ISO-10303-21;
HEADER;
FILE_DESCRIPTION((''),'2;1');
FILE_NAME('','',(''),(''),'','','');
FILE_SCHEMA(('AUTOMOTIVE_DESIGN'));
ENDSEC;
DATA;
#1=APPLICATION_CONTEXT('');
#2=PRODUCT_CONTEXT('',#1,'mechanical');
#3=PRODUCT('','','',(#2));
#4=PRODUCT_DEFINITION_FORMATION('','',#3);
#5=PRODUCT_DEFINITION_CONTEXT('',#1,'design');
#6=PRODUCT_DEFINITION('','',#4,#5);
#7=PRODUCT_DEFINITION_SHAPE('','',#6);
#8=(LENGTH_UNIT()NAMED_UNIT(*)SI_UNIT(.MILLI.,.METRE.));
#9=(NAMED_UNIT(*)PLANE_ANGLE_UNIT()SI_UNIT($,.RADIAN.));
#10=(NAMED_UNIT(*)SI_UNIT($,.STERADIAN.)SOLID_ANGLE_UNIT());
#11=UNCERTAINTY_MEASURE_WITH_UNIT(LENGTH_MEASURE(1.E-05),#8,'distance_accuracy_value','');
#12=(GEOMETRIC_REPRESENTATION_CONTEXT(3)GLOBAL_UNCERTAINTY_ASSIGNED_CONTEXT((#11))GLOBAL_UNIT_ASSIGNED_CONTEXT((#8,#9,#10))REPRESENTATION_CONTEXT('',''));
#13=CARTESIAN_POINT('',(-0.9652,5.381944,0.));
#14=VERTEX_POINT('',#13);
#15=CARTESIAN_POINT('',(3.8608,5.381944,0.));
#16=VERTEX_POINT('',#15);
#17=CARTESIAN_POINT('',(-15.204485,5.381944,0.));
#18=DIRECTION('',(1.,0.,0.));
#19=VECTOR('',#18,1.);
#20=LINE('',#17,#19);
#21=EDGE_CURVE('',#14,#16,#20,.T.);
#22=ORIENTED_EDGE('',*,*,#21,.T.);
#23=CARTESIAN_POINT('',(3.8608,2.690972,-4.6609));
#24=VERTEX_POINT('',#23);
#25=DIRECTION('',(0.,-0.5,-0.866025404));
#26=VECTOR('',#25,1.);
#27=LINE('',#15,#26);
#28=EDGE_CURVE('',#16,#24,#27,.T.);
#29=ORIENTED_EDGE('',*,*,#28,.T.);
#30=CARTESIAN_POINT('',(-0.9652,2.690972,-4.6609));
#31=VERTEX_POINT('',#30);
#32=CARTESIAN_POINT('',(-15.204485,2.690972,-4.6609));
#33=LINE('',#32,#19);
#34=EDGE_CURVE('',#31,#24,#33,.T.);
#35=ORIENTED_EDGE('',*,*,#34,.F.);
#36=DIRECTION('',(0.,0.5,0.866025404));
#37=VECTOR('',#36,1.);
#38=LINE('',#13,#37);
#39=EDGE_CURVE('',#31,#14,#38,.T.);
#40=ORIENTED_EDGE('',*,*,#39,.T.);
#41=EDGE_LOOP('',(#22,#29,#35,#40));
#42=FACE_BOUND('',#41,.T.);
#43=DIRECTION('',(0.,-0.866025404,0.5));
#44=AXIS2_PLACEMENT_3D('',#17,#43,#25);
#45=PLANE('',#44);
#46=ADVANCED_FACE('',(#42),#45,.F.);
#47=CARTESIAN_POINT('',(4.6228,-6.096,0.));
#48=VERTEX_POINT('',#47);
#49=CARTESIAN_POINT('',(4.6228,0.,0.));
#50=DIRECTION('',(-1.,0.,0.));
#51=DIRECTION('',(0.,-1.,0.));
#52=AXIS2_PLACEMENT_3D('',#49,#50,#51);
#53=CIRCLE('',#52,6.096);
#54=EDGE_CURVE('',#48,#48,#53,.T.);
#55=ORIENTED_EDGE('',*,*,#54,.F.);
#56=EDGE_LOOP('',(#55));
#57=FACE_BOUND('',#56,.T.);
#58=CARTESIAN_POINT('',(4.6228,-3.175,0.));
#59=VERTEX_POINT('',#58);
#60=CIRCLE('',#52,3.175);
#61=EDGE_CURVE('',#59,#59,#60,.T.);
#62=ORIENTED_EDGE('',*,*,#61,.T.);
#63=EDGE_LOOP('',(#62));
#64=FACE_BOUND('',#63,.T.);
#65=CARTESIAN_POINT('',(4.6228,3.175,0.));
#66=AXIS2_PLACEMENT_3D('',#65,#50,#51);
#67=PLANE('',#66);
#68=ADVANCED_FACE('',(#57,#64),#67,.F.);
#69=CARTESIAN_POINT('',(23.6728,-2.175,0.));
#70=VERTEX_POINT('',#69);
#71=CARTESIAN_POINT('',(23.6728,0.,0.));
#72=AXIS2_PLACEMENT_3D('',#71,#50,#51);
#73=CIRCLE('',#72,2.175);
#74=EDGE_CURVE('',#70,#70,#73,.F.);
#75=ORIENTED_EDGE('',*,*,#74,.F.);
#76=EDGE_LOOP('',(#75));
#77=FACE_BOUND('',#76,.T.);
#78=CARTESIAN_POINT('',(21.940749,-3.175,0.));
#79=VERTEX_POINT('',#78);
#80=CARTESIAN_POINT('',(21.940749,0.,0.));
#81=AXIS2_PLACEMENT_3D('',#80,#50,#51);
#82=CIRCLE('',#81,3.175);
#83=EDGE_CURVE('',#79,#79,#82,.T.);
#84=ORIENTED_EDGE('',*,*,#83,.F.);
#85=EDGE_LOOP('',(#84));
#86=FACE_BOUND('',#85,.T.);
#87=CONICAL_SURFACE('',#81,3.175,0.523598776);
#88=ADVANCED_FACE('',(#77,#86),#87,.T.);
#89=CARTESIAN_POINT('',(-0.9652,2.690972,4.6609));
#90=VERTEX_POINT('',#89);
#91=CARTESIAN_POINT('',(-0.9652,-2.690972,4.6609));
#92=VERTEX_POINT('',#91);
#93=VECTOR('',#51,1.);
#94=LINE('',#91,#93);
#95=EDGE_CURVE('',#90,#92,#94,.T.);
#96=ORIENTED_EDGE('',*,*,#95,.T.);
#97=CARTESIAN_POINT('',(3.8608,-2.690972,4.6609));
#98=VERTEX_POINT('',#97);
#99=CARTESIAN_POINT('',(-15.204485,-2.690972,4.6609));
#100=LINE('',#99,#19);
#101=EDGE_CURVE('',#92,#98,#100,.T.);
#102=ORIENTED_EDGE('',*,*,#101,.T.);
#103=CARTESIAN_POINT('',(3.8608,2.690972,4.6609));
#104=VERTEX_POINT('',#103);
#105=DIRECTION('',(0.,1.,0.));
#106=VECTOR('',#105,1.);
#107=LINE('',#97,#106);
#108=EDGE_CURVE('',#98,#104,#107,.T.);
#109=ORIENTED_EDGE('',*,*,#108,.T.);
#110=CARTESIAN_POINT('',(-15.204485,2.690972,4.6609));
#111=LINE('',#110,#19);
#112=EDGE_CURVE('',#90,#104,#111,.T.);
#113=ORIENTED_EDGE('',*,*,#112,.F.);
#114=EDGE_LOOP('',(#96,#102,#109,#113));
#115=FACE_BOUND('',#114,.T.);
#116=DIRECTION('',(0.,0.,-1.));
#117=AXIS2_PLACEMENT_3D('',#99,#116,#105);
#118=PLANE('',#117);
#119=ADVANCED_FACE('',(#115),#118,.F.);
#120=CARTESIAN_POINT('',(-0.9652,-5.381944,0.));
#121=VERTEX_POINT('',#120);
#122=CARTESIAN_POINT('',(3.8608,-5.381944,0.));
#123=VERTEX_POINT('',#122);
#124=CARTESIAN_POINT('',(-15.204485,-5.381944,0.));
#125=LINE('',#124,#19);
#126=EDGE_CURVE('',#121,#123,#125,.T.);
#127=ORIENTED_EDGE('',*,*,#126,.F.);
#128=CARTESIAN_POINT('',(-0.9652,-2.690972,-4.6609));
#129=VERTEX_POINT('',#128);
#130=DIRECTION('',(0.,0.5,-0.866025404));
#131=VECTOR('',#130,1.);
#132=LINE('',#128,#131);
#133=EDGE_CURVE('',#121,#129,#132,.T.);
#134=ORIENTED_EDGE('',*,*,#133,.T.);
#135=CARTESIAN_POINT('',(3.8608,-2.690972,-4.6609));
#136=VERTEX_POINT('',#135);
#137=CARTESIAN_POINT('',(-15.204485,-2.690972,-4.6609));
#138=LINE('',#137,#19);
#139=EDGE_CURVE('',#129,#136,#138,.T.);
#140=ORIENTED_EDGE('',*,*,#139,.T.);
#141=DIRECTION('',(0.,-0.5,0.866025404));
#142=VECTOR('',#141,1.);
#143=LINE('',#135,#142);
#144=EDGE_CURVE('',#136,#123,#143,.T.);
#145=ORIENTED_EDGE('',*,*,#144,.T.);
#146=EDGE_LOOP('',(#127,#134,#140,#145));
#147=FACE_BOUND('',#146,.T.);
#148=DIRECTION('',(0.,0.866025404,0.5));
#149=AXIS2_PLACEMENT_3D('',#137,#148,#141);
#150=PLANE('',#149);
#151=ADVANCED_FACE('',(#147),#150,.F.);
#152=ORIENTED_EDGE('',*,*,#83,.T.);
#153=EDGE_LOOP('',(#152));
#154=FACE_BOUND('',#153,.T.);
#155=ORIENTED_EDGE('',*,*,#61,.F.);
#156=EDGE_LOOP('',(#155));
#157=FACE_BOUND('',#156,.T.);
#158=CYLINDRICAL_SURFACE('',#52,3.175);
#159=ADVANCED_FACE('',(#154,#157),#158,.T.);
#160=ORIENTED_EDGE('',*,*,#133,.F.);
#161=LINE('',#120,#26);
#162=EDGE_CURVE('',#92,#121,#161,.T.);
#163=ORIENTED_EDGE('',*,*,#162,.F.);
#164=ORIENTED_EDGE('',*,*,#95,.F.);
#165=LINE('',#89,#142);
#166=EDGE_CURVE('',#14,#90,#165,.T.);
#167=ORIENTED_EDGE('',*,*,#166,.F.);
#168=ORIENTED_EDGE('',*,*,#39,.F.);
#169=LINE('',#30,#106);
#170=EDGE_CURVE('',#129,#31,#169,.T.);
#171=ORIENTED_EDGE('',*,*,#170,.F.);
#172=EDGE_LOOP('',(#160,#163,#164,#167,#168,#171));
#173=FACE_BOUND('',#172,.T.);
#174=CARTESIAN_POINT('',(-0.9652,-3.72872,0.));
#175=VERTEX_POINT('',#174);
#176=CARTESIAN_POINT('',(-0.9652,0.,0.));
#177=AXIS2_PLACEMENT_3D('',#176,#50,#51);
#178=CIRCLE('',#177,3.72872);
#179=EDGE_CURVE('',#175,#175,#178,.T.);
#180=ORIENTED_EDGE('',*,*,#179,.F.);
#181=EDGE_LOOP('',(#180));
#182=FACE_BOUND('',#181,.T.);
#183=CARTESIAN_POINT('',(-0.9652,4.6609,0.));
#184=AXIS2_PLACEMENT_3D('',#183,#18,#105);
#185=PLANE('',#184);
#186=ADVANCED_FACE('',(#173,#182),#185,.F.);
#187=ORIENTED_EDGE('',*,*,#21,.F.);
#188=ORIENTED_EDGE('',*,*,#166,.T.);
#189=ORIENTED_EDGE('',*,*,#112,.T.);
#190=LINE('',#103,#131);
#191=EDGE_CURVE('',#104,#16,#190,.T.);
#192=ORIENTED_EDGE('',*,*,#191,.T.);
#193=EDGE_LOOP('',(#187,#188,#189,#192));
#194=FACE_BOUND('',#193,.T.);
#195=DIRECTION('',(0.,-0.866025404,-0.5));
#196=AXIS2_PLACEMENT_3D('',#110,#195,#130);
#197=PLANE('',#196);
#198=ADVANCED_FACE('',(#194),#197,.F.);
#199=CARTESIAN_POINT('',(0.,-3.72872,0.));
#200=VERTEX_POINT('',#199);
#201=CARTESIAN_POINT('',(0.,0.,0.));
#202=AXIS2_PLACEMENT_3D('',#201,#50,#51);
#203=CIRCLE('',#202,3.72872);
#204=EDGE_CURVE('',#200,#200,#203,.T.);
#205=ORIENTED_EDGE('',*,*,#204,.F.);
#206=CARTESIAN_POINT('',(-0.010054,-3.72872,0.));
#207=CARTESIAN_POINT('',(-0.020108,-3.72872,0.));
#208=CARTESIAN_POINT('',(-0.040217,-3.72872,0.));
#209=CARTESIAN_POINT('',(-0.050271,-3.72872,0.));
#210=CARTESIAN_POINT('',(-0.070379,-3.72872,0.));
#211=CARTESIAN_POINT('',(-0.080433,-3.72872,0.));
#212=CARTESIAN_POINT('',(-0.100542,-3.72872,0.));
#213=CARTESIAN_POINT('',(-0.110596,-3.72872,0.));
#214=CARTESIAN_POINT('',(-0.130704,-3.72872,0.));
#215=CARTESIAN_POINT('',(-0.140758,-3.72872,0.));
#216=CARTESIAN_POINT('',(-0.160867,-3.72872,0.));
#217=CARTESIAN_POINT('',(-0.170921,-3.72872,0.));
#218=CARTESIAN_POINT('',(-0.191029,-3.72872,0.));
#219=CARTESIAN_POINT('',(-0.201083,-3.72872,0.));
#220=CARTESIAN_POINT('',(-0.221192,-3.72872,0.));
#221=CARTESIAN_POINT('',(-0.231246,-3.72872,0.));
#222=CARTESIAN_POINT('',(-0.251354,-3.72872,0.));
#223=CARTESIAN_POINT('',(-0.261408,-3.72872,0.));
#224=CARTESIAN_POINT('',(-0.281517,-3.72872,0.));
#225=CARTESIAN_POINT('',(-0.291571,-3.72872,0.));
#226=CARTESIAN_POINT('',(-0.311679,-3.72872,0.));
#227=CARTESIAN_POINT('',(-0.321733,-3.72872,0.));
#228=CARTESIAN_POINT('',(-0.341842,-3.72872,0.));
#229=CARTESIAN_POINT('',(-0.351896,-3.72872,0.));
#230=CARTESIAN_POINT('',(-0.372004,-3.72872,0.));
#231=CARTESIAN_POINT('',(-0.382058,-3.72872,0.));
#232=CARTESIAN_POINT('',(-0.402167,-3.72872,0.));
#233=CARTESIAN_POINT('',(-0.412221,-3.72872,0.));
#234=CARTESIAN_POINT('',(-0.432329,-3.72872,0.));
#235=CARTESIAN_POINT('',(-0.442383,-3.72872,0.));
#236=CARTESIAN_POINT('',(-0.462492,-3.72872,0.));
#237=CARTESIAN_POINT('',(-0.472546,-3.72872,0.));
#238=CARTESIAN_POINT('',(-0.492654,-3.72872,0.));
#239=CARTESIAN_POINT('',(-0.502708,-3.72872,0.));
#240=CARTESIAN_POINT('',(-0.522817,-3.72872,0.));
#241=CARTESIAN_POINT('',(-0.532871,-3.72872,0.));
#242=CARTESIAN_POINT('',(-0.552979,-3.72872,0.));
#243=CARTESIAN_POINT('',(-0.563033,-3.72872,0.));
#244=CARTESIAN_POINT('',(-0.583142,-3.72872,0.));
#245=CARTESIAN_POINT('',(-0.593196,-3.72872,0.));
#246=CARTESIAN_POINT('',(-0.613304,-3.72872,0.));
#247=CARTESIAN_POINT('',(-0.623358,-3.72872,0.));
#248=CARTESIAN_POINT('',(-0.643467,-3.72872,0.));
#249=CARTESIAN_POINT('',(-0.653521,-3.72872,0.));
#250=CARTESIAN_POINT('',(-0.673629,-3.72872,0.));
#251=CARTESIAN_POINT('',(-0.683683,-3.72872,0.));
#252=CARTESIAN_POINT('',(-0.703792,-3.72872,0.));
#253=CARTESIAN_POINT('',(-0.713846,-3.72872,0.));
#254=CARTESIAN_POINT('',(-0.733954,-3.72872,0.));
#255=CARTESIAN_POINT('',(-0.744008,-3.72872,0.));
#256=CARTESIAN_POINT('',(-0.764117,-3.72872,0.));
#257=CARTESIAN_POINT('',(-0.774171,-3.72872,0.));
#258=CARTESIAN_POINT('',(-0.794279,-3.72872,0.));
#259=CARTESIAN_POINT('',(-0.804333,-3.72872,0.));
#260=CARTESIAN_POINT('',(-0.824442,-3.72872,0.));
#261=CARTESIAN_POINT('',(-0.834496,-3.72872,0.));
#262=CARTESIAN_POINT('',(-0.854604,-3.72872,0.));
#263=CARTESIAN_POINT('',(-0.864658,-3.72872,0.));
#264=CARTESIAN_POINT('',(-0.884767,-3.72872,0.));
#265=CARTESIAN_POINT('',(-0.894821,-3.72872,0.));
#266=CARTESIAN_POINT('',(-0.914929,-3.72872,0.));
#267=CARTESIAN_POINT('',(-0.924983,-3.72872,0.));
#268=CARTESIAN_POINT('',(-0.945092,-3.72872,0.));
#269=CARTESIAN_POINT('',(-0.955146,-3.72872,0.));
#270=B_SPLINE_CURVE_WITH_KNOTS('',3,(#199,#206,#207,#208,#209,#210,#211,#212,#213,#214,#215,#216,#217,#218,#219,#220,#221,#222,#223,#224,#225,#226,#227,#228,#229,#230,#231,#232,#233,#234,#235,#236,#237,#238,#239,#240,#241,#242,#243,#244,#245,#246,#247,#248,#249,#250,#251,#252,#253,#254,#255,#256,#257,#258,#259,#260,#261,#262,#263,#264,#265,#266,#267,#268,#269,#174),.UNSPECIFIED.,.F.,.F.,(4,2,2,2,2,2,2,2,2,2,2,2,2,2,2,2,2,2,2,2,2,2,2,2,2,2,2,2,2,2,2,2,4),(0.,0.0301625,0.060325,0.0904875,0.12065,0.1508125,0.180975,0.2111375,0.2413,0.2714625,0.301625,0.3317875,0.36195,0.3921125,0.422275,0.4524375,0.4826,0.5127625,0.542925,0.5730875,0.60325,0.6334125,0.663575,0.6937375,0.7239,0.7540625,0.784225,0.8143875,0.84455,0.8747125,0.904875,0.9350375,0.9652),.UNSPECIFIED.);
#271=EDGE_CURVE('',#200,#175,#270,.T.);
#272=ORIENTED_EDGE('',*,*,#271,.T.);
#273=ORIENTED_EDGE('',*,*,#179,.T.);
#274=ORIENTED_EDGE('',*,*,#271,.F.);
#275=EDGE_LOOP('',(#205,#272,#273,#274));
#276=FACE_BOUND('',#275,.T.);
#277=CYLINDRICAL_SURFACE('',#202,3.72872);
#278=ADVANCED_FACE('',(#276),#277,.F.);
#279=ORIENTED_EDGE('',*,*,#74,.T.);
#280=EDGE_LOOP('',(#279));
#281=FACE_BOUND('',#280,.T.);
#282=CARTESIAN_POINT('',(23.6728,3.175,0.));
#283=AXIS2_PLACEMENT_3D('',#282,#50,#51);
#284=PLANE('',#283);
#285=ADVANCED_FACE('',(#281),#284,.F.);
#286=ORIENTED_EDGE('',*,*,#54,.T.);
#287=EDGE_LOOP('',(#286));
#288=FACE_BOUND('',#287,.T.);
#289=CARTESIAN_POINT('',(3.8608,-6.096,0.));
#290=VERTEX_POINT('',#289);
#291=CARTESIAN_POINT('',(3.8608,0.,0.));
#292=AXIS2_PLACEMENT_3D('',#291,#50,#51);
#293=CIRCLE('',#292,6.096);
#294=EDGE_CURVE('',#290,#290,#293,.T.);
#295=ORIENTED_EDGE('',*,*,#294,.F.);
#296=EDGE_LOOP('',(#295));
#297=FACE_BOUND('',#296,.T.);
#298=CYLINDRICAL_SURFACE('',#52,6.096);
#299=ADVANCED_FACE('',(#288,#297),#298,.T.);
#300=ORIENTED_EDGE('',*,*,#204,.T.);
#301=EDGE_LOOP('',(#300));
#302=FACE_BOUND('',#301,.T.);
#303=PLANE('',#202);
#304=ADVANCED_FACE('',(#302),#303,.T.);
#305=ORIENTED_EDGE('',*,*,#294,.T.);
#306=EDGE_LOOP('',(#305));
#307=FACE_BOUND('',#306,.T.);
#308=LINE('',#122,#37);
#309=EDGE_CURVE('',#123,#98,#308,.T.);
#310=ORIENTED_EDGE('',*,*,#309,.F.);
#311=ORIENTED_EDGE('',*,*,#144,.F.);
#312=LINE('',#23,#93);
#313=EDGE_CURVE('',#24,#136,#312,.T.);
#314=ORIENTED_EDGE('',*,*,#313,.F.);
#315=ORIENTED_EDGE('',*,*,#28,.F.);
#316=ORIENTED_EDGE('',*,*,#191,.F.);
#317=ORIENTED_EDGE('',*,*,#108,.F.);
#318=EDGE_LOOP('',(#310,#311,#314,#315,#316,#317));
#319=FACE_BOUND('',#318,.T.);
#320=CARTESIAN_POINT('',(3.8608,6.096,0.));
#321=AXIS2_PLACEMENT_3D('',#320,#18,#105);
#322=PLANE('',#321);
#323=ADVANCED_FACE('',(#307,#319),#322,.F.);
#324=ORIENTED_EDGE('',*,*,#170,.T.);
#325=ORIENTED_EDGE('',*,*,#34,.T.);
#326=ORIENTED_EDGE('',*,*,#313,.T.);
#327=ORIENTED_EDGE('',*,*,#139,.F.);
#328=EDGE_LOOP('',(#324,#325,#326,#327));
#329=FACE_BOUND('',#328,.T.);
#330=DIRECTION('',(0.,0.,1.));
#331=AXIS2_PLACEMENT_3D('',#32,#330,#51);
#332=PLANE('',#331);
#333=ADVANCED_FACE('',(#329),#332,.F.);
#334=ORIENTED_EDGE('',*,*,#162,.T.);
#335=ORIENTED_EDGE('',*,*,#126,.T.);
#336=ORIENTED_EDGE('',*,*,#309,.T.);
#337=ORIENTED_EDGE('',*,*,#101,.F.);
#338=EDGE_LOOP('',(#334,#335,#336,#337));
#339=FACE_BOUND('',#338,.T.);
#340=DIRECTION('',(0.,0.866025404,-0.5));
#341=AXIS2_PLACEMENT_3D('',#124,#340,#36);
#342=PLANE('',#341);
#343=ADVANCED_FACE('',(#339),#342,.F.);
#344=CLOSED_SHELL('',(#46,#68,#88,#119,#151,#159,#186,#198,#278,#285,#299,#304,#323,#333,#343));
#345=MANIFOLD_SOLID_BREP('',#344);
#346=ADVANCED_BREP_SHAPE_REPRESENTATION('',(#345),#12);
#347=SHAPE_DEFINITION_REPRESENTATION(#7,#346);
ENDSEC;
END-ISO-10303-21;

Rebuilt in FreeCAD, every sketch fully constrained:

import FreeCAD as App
import Part
import Sketcher
from FreeCAD import Vector
Q = App.Units.Quantity


def edges_at(feature, points):
    """Names of the edges that pass closest to the given points."""
    edges = feature.Shape.Edges
    near = lambda p: min(range(len(edges)), key=lambda i: edges[i].distToShape(Part.Vertex(*p))[0])
    return sorted({f"Edge{near(p) + 1}" for p in points})

doc = App.newDocument("Part")
params = doc.addObject("Spreadsheet::Sheet", "Params")
for row, (alias, value) in enumerate([
    ("sketch1_width", "0.03 in"),
    ("sketch1_width2", "0.19 in"),
    ("sketch1_width3", "0.97 in"),
    ("sketch1_height", "0.125 in"),
    ("sketch1_height2", "0.115 in"),
    ("revolution_angle", "360 deg"),
    ("pad1_length", "0.19 in"),
    ("pocket1_length", "0.038 in"),
    ("chamfer_size", "1 mm"),
    ("chamfer_size2", "1.732051 mm"),
], start=1):
    params.set(f"A{row}", alias)
    params.set(f"B{row}", "=" + value)
    params.setAlias(f"B{row}", alias)

body = doc.addObject("PartDesign::Body", "Body")

sketch1 = body.newObject("Sketcher::SketchObject", "Sketch")
sketch1.AttachmentSupport = (doc.getObject("XY_Plane"), [""])
sketch1.MapMode = "FlatFace"
sketch1.addGeometry(Part.LineSegment(Vector(4.6, 6.1, 0), Vector(3.9, 6.1, 0)), False)
sketch1.addGeometry(Part.LineSegment(Vector(3.9, 6.1, 0), Vector(3.9, 4.7, 0)), False)
sketch1.addGeometry(Part.LineSegment(Vector(3.9, 4.7, 0), Vector(-1, 4.7, 0)), False)
sketch1.addGeometry(Part.LineSegment(Vector(-1, 4.7, 0), Vector(-1, 0, 0)), False)
sketch1.addGeometry(Part.LineSegment(Vector(-1, 0, 0), Vector(23.7, 0, 0)), False)
sketch1.addGeometry(Part.LineSegment(Vector(23.7, 0, 0), Vector(23.7, 3.2, 0)), False)
sketch1.addGeometry(Part.LineSegment(Vector(23.7, 3.2, 0), Vector(4.6, 3.2, 0)), False)
sketch1.addGeometry(Part.LineSegment(Vector(4.6, 3.2, 0), Vector(4.6, 6.1, 0)), False)
sketch1.addConstraint(Sketcher.Constraint("Coincident", 0, 2, 1, 1))
sketch1.addConstraint(Sketcher.Constraint("Coincident", 1, 2, 2, 1))
sketch1.addConstraint(Sketcher.Constraint("Coincident", 2, 2, 3, 1))
sketch1.addConstraint(Sketcher.Constraint("Coincident", 3, 2, 4, 1))
sketch1.addConstraint(Sketcher.Constraint("Coincident", 4, 2, 5, 1))
sketch1.addConstraint(Sketcher.Constraint("Coincident", 5, 2, 6, 1))
sketch1.addConstraint(Sketcher.Constraint("Coincident", 6, 2, 7, 1))
sketch1.addConstraint(Sketcher.Constraint("Coincident", 7, 2, 0, 1))
sketch1.addConstraint(Sketcher.Constraint("Horizontal", 0))
sketch1.addConstraint(Sketcher.Constraint("Vertical", 1))
sketch1.addConstraint(Sketcher.Constraint("Horizontal", 2))
sketch1.addConstraint(Sketcher.Constraint("Vertical", 3))
sketch1.addConstraint(Sketcher.Constraint("Horizontal", 4))
sketch1.addConstraint(Sketcher.Constraint("Vertical", 5))
sketch1.addConstraint(Sketcher.Constraint("Horizontal", 6))
sketch1.addConstraint(Sketcher.Constraint("Vertical", 7))
sketch1.addConstraint(Sketcher.Constraint("PointOnObject", 3, 2, -1))
sketch1.addConstraint(Sketcher.Constraint("DistanceX", 0, 2, 0, 1, Q("0.03 in")))
sketch1.addConstraint(Sketcher.Constraint("DistanceX", 2, 2, 2, 1, Q("0.19 in")))
sketch1.addConstraint(Sketcher.Constraint("DistanceX", 4, 1, 4, 2, Q("0.97 in")))
sketch1.addConstraint(Sketcher.Constraint("DistanceY", 5, 1, 5, 2, Q("0.125 in")))
sketch1.addConstraint(Sketcher.Constraint("DistanceY", 7, 1, 7, 2, Q("0.115 in")))
sketch1.addConstraint(Sketcher.Constraint("DistanceY", 1, 2, 1, 1, Q("0.0565 in")))
sketch1.addConstraint(Sketcher.Constraint("DistanceX", -1, 1, 0, 2, Q("0.152 in")))
sketch1.setExpression("Constraints[17]", "Params.sketch1_width")
sketch1.setExpression("Constraints[18]", "Params.sketch1_width2")
sketch1.setExpression("Constraints[19]", "Params.sketch1_width3")
sketch1.setExpression("Constraints[20]", "Params.sketch1_height")
sketch1.setExpression("Constraints[21]", "Params.sketch1_height2")
revolution = body.newObject("PartDesign::Revolution", "Revolution")
revolution.Profile = sketch1
revolution.ReferenceAxis = (sketch1, ["H_Axis"])
revolution.setExpression("Angle", "Params.revolution_angle")

sketch2 = body.newObject("Sketcher::SketchObject", "Sketch001")
sketch2.AttachmentSupport = (doc.getObject("YZ_Plane"), [""])
sketch2.MapMode = "FlatFace"
sketch2.AttachmentOffset = App.Placement(Vector(0, 0, 0.152 * 25.4), App.Rotation())
sketch2.addGeometry(Part.LineSegment(Vector(5, 0, 0), Vector(3, -5, 0)), False)
sketch2.addGeometry(Part.LineSegment(Vector(3, -5, 0), Vector(-3, -5, 0)), False)
sketch2.addGeometry(Part.LineSegment(Vector(-3, -5, 0), Vector(-5, 0, 0)), False)
sketch2.addGeometry(Part.LineSegment(Vector(-5, 0, 0), Vector(-3, 5, 0)), False)
sketch2.addGeometry(Part.LineSegment(Vector(-3, 5, 0), Vector(3, 5, 0)), False)
sketch2.addGeometry(Part.LineSegment(Vector(3, 5, 0), Vector(5, 0, 0)), False)
sketch2.addConstraint(Sketcher.Constraint("Coincident", 0, 2, 1, 1))
sketch2.addConstraint(Sketcher.Constraint("Coincident", 1, 2, 2, 1))
sketch2.addConstraint(Sketcher.Constraint("Coincident", 2, 2, 3, 1))
sketch2.addConstraint(Sketcher.Constraint("Coincident", 3, 2, 4, 1))
sketch2.addConstraint(Sketcher.Constraint("Coincident", 4, 2, 5, 1))
sketch2.addConstraint(Sketcher.Constraint("Coincident", 5, 2, 0, 1))
sketch2.addConstraint(Sketcher.Constraint("Horizontal", 1))
sketch2.addConstraint(Sketcher.Constraint("Horizontal", 4))
sketch2.addConstraint(Sketcher.Constraint("Symmetric", 0, 2, 3, 2, -1, 1))
sketch2.addConstraint(Sketcher.Constraint("Symmetric", 2, 2, 5, 2, -1, 1))
sketch2.addConstraint(Sketcher.Constraint("PointOnObject", 2, 2, -1))
sketch2.addConstraint(Sketcher.Constraint("Parallel", 2, 5))
sketch2.addConstraint(Sketcher.Constraint("Vertical", 1, 2, 3, 2))
sketch2.addConstraint(Sketcher.Constraint("Angle", 0, Q("-120 deg")))
sketch2.addConstraint(Sketcher.Constraint("DistanceY", 1, 2, 3, 2, Q("0.367 in")))
sketch2.addConstraint(Sketcher.Constraint("DistanceX", 1, 2, 1, 1, Q("5.381944 mm")))
pad1 = body.newObject("PartDesign::Pad", "Pad")
pad1.Profile = sketch2
pad1.setExpression("Length", "Params.pad1_length")
pad1.Reversed = True

sketch3 = body.newObject("Sketcher::SketchObject", "Sketch002")
sketch3.AttachmentSupport = (doc.getObject("YZ_Plane"), [""])
sketch3.MapMode = "FlatFace"
sketch3.AttachmentOffset = App.Placement(Vector(0, 0, -0.038 * 25.4), App.Rotation())
sketch3.addGeometry(Part.Circle(Vector(0, 0, 0), Vector(0, 0, 1), 3.7), False)
sketch3.addConstraint(Sketcher.Constraint("Coincident", 0, 3, -1, 1))
sketch3.addConstraint(Sketcher.Constraint("Diameter", 0, Q("0.2936 in")))
pocket1 = body.newObject("PartDesign::Pocket", "Pocket")
pocket1.Profile = sketch3
pocket1.setExpression("Length", "Params.pocket1_length")
pocket1.Reversed = True
doc.recompute()

chamfer = body.newObject("PartDesign::Chamfer", "Chamfer")
chamfer.Base = (pocket1, edges_at(pocket1, [(23.673, 3.175, 0)]))
chamfer.ChamferType = "Two distances"
chamfer.setExpression("Size", "Params.chamfer_size")
chamfer.setExpression("Size2", "Params.chamfer_size2")
chamfer.FlipDirection = True

doc.recompute()
